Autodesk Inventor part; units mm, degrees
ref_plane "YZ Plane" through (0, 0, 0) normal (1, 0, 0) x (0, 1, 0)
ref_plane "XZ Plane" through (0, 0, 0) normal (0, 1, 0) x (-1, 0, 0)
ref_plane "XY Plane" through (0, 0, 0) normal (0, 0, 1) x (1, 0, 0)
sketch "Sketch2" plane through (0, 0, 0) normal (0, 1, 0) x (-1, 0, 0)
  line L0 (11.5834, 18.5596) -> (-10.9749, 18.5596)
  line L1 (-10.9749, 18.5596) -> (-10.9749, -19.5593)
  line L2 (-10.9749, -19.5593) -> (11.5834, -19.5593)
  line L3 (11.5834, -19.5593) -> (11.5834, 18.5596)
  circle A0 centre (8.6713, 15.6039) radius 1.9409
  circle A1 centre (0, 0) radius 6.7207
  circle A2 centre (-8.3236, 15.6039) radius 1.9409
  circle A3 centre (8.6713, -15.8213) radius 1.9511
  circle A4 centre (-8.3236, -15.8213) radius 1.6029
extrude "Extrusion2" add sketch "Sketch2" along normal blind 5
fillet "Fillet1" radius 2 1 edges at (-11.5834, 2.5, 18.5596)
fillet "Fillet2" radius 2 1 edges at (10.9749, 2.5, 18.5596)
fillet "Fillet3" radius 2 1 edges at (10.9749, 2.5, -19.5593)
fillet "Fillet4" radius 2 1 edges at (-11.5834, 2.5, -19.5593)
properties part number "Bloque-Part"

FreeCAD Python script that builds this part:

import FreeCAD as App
import Part
import Sketcher


def edges_at(feature, points):
    """Names of the edges that pass closest to the given points."""
    edges = feature.Shape.Edges
    near = lambda p: min(range(len(edges)), key=lambda i: edges[i].distToShape(Part.Vertex(*p))[0])
    return sorted({f"Edge{near(p) + 1}" for p in points})


def add_polygon(sketch, points):
    """Adds a closed chain of lines whose ends are joined by coincident constraints."""
    first, n = sketch.GeometryCount, len(points)
    for a, b in zip(points, points[1:] + points[:1]):
        sketch.addGeometry(Part.LineSegment(App.Vector(*a, 0), App.Vector(*b, 0)), False)
    for i in range(n):
        sketch.addConstraint(Sketcher.Constraint("Coincident", first + i, 2, first + (i + 1) % n, 1))

doc = App.newDocument("Part")
body = doc.addObject("PartDesign::Body", "Body")

sketch1 = body.newObject("Sketcher::SketchObject", "Sketch")
sketch1.AttachmentSupport = (doc.getObject("XZ_Plane"), [""])
sketch1.MapMode = "FlatFace"
add_polygon(sketch1, [(-11.6, -19.6), (-11.6, 18.6), (11, 18.6), (11, -19.6)])
sketch1.addGeometry(Part.Circle(App.Vector(8.3, -15.8, 0), App.Vector(0, 0, 1), 1.6), False)
sketch1.addGeometry(Part.Circle(App.Vector(-8.7, -15.8, 0), App.Vector(0, 0, 1), 2), False)
sketch1.addGeometry(Part.Circle(App.Vector(0, 0, 0), App.Vector(0, 0, 1), 6.7), False)
sketch1.addGeometry(Part.Circle(App.Vector(8.3, 15.6, 0), App.Vector(0, 0, 1), 1.9), False)
sketch1.addGeometry(Part.Circle(App.Vector(-8.7, 15.6, 0), App.Vector(0, 0, 1), 1.9), False)
sketch1.addConstraint([
    Sketcher.Constraint("Vertical", 0),
    Sketcher.Constraint("Horizontal", 1),
    Sketcher.Constraint("Vertical", 2),
    Sketcher.Constraint("Horizontal", 3),
    Sketcher.Constraint("Coincident", 6, 3, -1, 1),
    Sketcher.Constraint("Equal", 7, 8),
    Sketcher.Constraint("Horizontal", 4, 3, 5, 3),
    Sketcher.Constraint("Horizontal", 7, 3, 8, 3),
    Sketcher.Constraint("Vertical", 4, 3, 7, 3),
    Sketcher.Constraint("Vertical", 5, 3, 8, 3),
    Sketcher.Constraint("Diameter", 4, 3.2058),
    Sketcher.Constraint("Diameter", 5, 3.9022),
    Sketcher.Constraint("Diameter", 6, 13.4414),
    Sketcher.Constraint("Diameter", 7, 3.8818),
    Sketcher.Constraint("DistanceY", 0, 1, 0, 2, 38.119),
    Sketcher.Constraint("DistanceX", 1, 1, 1, 2, 22.5583),
    Sketcher.Constraint("DistanceY", -1, 1, 7, 3, 15.604),
    Sketcher.Constraint("DistanceX", -1, 1, 1, 2, 10.975),
    Sketcher.Constraint("DistanceX", 5, 3, 4, 3, 16.995),
    Sketcher.Constraint("DistanceX", 0, 2, 8, 3, 2.912),
    Sketcher.Constraint("DistanceY", 5, 3, 0, 2, 34.381),
    Sketcher.Constraint("DistanceY", 4, 3, -1, 1, 15.8213),
])
pad1 = body.newObject("PartDesign::Pad", "Pad")
pad1.Profile = sketch1
pad1.Length = 5
pad1.Reversed = True
doc.recompute()

fillet = body.newObject("PartDesign::Fillet", "Fillet")
fillet.Base = (pad1, edges_at(pad1, [(-11.583, 2.5, 18.56)]))
fillet.Radius = 2
doc.recompute()

fillet2 = body.newObject("PartDesign::Fillet", "Fillet001")
fillet2.Base = (fillet, edges_at(fillet, [(10.975, 2.5, 18.56)]))
fillet2.Radius = 2
doc.recompute()

fillet3 = body.newObject("PartDesign::Fillet", "Fillet002")
fillet3.Base = (fillet2, edges_at(fillet2, [(10.975, 2.5, -19.559)]))
fillet3.Radius = 2
doc.recompute()

fillet4 = body.newObject("PartDesign::Fillet", "Fillet003")
fillet4.Base = (fillet3, edges_at(fillet3, [(-11.583, 2.5, -19.559)]))
fillet4.Radius = 2

doc.recompute()
